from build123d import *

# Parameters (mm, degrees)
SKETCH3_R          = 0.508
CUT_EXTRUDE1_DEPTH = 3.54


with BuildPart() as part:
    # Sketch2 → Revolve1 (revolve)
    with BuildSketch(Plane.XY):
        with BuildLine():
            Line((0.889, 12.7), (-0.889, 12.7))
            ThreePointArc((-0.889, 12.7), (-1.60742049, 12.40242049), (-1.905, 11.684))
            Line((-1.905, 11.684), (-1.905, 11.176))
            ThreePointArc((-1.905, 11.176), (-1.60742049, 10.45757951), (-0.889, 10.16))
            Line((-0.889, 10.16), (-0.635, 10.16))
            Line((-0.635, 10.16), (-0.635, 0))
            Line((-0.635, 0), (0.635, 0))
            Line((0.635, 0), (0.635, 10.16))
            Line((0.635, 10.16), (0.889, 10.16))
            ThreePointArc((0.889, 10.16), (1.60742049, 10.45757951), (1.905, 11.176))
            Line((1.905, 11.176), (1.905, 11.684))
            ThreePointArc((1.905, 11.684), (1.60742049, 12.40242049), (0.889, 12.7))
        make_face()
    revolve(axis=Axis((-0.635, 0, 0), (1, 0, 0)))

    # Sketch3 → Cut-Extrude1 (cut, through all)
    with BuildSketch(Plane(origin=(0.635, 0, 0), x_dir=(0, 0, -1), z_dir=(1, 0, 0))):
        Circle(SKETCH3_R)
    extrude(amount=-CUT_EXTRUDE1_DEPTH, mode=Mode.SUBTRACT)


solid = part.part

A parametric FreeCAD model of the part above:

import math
import FreeCAD as App
import Part
import Sketcher
Q = App.Units.Quantity

doc = App.newDocument("Part")
params = doc.addObject("Spreadsheet::Sheet", "Params")
for row, (alias, value) in enumerate([
    ("sketch1_radius", "0.04 in"),
    ("sketch1_height", "0.4 in"),
    ("sketch1_width", "0.07 in"),
    ("sketch1_width2", "0.01 in"),
    ("sketch1_height2", "0.02 in"),
    ("revolution_angle", "360 deg"),
    ("sketch2_diameter", "0.04 in"),
], start=1):
    params.set(f"A{row}", alias)
    params.set(f"B{row}", "=" + value)
    params.setAlias(f"B{row}", alias)

body = doc.addObject("PartDesign::Body", "Body")

sketch1 = doc.addObject("Sketcher::SketchObject", "Sketch")
body.addObject(sketch1)
sketch1.AttachmentSupport = (doc.XY_Plane, [""])
sketch1.MapMode = "FlatFace"
sketch1.addGeometry(Part.LineSegment(App.Vector(0.89, 12.7, 0), App.Vector(-0.89, 12.7, 0)), False)
sketch1.addGeometry(Part.ArcOfCircle(Part.Circle(App.Vector(-0.89, 11.68, 0), App.Vector(0, 0, 1), 1.02), math.radians(90), math.radians(180)), False)
sketch1.addGeometry(Part.LineSegment(App.Vector(-1.91, 11.68, 0), App.Vector(-1.91, 11.18, 0)), False)
sketch1.addGeometry(Part.ArcOfCircle(Part.Circle(App.Vector(-0.89, 11.18, 0), App.Vector(0, 0, 1), 1.02), math.radians(180), math.radians(270)), False)
sketch1.addGeometry(Part.LineSegment(App.Vector(-0.89, 10.16, 0), App.Vector(-0.64, 10.16, 0)), False)
sketch1.addGeometry(Part.LineSegment(App.Vector(-0.64, 10.16, 0), App.Vector(-0.64, 0, 0)), False)
sketch1.addGeometry(Part.LineSegment(App.Vector(-0.64, 0, 0), App.Vector(0.64, 0, 0)), False)
sketch1.addGeometry(Part.LineSegment(App.Vector(0.64, 0, 0), App.Vector(0.64, 10.16, 0)), False)
sketch1.addGeometry(Part.LineSegment(App.Vector(0.64, 10.16, 0), App.Vector(0.89, 10.16, 0)), False)
sketch1.addGeometry(Part.ArcOfCircle(Part.Circle(App.Vector(0.89, 11.18, 0), App.Vector(0, 0, 1), 1.02), math.radians(-90), math.radians(0)), False)
sketch1.addGeometry(Part.LineSegment(App.Vector(1.91, 11.18, 0), App.Vector(1.91, 11.68, 0)), False)
sketch1.addGeometry(Part.ArcOfCircle(Part.Circle(App.Vector(0.89, 11.68, 0), App.Vector(0, 0, 1), 1.02), math.radians(0), math.radians(90)), False)
sketch1.addConstraint(Sketcher.Constraint("Tangent", 0, 2, 1, 1))
sketch1.addConstraint(Sketcher.Constraint("Tangent", 1, 2, 2, 1))
sketch1.addConstraint(Sketcher.Constraint("Tangent", 2, 2, 3, 1))
sketch1.addConstraint(Sketcher.Constraint("Tangent", 3, 2, 4, 1))
sketch1.addConstraint(Sketcher.Constraint("Coincident", 4, 2, 5, 1))
sketch1.addConstraint(Sketcher.Constraint("Coincident", 5, 2, 6, 1))
sketch1.addConstraint(Sketcher.Constraint("Coincident", 6, 2, 7, 1))
sketch1.addConstraint(Sketcher.Constraint("Coincident", 7, 2, 8, 1))
sketch1.addConstraint(Sketcher.Constraint("Tangent", 8, 2, 9, 1))
sketch1.addConstraint(Sketcher.Constraint("Tangent", 9, 2, 10, 1))
sketch1.addConstraint(Sketcher.Constraint("Tangent", 10, 2, 11, 1))
sketch1.addConstraint(Sketcher.Constraint("Tangent", 11, 2, 0, 1))
sketch1.addConstraint(Sketcher.Constraint("Horizontal", 0))
sketch1.addConstraint(Sketcher.Constraint("Vertical", 2))
sketch1.addConstraint(Sketcher.Constraint("Horizontal", 4))
sketch1.addConstraint(Sketcher.Constraint("Vertical", 5))
sketch1.addConstraint(Sketcher.Constraint("Horizontal", 6))
sketch1.addConstraint(Sketcher.Constraint("Vertical", 7))
sketch1.addConstraint(Sketcher.Constraint("Horizontal", 8))
sketch1.addConstraint(Sketcher.Constraint("Vertical", 10))
sketch1.addConstraint(Sketcher.Constraint("Equal", 1, 3))
sketch1.addConstraint(Sketcher.Constraint("Equal", 3, 9))
sketch1.addConstraint(Sketcher.Constraint("Equal", 9, 11))
sketch1.addConstraint(Sketcher.Constraint("Symmetric", 5, 2, 6, 2, -1, 1))
sketch1.addConstraint(Sketcher.Constraint("Symmetric", 3, 3, 9, 3, -2))
sketch1.addConstraint(Sketcher.Constraint("Radius", 1, Q("0.04 in")))
sketch1.addConstraint(Sketcher.Constraint("DistanceY", 5, 2, 5, 1, Q("0.4 in")))
sketch1.addConstraint(Sketcher.Constraint("DistanceX", 0, 2, 0, 1, Q("0.07 in")))
sketch1.addConstraint(Sketcher.Constraint("DistanceX", 4, 1, 4, 2, Q("0.01 in")))
sketch1.addConstraint(Sketcher.Constraint("DistanceY", 2, 2, 2, 1, Q("0.02 in")))
sketch1.setExpression("Constraints[25]", "Params.sketch1_radius")
sketch1.setExpression("Constraints[26]", "Params.sketch1_height")
sketch1.setExpression("Constraints[27]", "Params.sketch1_width")
sketch1.setExpression("Constraints[28]", "Params.sketch1_width2")
sketch1.setExpression("Constraints[29]", "Params.sketch1_height2")
revolution = doc.addObject("PartDesign::Revolution", "Revolution")
body.addObject(revolution)
revolution.Profile = sketch1
revolution.ReferenceAxis = (sketch1, ["H_Axis"])
revolution.setExpression("Angle", "Params.revolution_angle")

sketch2 = doc.addObject("Sketcher::SketchObject", "Sketch001")
body.addObject(sketch2)
sketch2.AttachmentSupport = (doc.YZ_Plane, [""])
sketch2.MapMode = "FlatFace"
sketch2.AttachmentOffset = App.Placement(App.Vector(0, 0, 0.025 * 25.4), App.Rotation())
sketch2.addGeometry(Part.Circle(App.Vector(0, 0, 0), App.Vector(0, 0, 1), 0.5), False)
sketch2.addConstraint(Sketcher.Constraint("Coincident", 0, 3, -1, 1))
sketch2.addConstraint(Sketcher.Constraint("Diameter", 0, Q("0.04 in")))
sketch2.setExpression("Constraints[1]", "Params.sketch2_diameter")
pocket1 = doc.addObject("PartDesign::Pocket", "Pocket")
body.addObject(pocket1)
pocket1.Profile = sketch2
pocket1.Type = "ThroughAll"

doc.recompute()
